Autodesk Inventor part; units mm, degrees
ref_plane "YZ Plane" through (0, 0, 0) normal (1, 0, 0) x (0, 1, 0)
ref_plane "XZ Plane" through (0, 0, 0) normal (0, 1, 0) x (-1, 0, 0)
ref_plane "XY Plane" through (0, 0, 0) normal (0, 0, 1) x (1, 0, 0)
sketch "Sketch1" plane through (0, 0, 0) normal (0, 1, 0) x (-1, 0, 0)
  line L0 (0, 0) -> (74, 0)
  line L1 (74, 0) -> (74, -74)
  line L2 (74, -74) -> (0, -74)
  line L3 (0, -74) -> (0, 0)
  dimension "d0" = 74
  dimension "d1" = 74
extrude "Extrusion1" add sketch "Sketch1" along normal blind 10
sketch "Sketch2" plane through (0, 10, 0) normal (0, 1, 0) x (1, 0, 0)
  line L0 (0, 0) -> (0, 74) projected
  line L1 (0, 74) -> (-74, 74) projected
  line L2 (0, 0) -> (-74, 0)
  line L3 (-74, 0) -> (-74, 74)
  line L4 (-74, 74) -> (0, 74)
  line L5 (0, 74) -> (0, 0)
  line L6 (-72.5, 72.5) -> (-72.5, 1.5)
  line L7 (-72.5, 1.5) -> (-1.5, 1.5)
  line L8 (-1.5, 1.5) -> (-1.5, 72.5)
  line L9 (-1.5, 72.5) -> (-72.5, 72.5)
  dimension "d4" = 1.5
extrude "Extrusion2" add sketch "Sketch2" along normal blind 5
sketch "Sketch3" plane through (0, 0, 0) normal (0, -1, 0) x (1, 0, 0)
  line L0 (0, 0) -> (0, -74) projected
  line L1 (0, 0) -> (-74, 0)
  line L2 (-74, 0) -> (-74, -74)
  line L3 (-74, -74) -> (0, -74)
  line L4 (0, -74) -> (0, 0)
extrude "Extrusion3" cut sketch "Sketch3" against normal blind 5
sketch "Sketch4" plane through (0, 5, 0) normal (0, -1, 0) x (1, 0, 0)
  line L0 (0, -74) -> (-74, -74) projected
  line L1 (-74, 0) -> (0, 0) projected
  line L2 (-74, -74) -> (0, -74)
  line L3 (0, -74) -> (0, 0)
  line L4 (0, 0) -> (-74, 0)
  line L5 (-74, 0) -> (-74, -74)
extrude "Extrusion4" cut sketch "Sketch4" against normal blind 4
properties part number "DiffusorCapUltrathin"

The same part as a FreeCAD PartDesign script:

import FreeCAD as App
import Part
import Sketcher

doc = App.newDocument("Part")
params = doc.addObject("Spreadsheet::Sheet", "Params")
for row, (alias, value) in enumerate([
    ("sketch1_width", "74 mm"),
    ("pad1_length", "10 mm"),
    ("sketch2_width", "74 mm"),
    ("pad2_length", "5 mm"),
    ("sketch3_width", "74 mm"),
    ("pocket1_length", "5 mm"),
    ("sketch4_width", "74 mm"),
    ("pocket2_length", "4 mm"),
], start=1):
    params.set(f"A{row}", alias)
    params.set(f"B{row}", "=" + value)
    params.setAlias(f"B{row}", alias)

body = doc.addObject("PartDesign::Body", "Body")

sketch1 = body.newObject("Sketcher::SketchObject", "Sketch")
sketch1.AttachmentSupport = (doc.getObject("XZ_Plane"), [""])
sketch1.MapMode = "FlatFace"
sketch1.addGeometry([
    Part.LineSegment(App.Vector(-74, 0, 0), App.Vector(0, 0, 0)),
    Part.LineSegment(App.Vector(0, 0, 0), App.Vector(0, -74, 0)),
    Part.LineSegment(App.Vector(0, -74, 0), App.Vector(-74, -74, 0)),
    Part.LineSegment(App.Vector(-74, -74, 0), App.Vector(-74, 0, 0)),
], False)
sketch1.addConstraint([
    Sketcher.Constraint("Coincident", 0, 2, 1, 1),
    Sketcher.Constraint("Coincident", 1, 2, 2, 1),
    Sketcher.Constraint("Coincident", 2, 2, 3, 1),
    Sketcher.Constraint("Coincident", 3, 2, 0, 1),
    Sketcher.Constraint("Horizontal", 0),
    Sketcher.Constraint("Vertical", 1),
    Sketcher.Constraint("Horizontal", 2),
    Sketcher.Constraint("Vertical", 3),
    Sketcher.Constraint("Coincident", 0, 2, -1, 1),
    Sketcher.Constraint("Equal", 2, 1),
    Sketcher.Constraint("DistanceX", 0, 1, 0, 2, 74.0),
])
sketch1.setExpression("Constraints[10]", "Params.sketch1_width")
pad1 = body.newObject("PartDesign::Pad", "Pad")
pad1.Profile = sketch1
pad1.setExpression("Length", "Params.pad1_length")
pad1.Reversed = True

sketch2 = body.newObject("Sketcher::SketchObject", "Sketch001")
sketch2.AttachmentSupport = (doc.getObject("XZ_Plane"), [""])
sketch2.MapMode = "FlatFace"
sketch2.AttachmentOffset = App.Placement(App.Vector(0, 0, -10), App.Rotation())
sketch2.addGeometry([
    Part.LineSegment(App.Vector(-74, 0, 0), App.Vector(0, 0, 0)),
    Part.LineSegment(App.Vector(0, 0, 0), App.Vector(0, -74, 0)),
    Part.LineSegment(App.Vector(0, -74, 0), App.Vector(-74, -74, 0)),
    Part.LineSegment(App.Vector(-74, -74, 0), App.Vector(-74, 0, 0)),
    Part.LineSegment(App.Vector(-72, -2, 0), App.Vector(-72, -72, 0)),
    Part.LineSegment(App.Vector(-72, -72, 0), App.Vector(-2, -72, 0)),
    Part.LineSegment(App.Vector(-2, -72, 0), App.Vector(-2, -2, 0)),
    Part.LineSegment(App.Vector(-2, -2, 0), App.Vector(-72, -2, 0)),
], False)
sketch2.addConstraint([
    Sketcher.Constraint("Coincident", 0, 2, 1, 1),
    Sketcher.Constraint("Coincident", 1, 2, 2, 1),
    Sketcher.Constraint("Coincident", 2, 2, 3, 1),
    Sketcher.Constraint("Coincident", 3, 2, 0, 1),
    Sketcher.Constraint("Coincident", 4, 2, 5, 1),
    Sketcher.Constraint("Coincident", 5, 2, 6, 1),
    Sketcher.Constraint("Coincident", 6, 2, 7, 1),
    Sketcher.Constraint("Coincident", 7, 2, 4, 1),
    Sketcher.Constraint("Horizontal", 0),
    Sketcher.Constraint("Vertical", 1),
    Sketcher.Constraint("Horizontal", 2),
    Sketcher.Constraint("Vertical", 3),
    Sketcher.Constraint("Vertical", 4),
    Sketcher.Constraint("Horizontal", 5),
    Sketcher.Constraint("Vertical", 6),
    Sketcher.Constraint("Horizontal", 7),
    Sketcher.Constraint("Coincident", 0, 2, -1, 1),
    Sketcher.Constraint("Equal", 2, 1),
    Sketcher.Constraint("Equal", 7, 4),
    Sketcher.Constraint("DistanceX", 5, 2, -1, 1, 1.5),
    Sketcher.Constraint("DistanceY", 6, 2, -1, 1, 1.5),
    Sketcher.Constraint("DistanceX", 2, 2, 4, 2, 1.5),
    Sketcher.Constraint("DistanceX", 0, 1, 0, 2, 74.0),
])
sketch2.setExpression("Constraints[22]", "Params.sketch2_width")
pad2 = body.newObject("PartDesign::Pad", "Pad001")
pad2.Profile = sketch2
pad2.setExpression("Length", "Params.pad2_length")
pad2.Reversed = True

sketch3 = body.newObject("Sketcher::SketchObject", "Sketch002")
sketch3.AttachmentSupport = (doc.getObject("XZ_Plane"), [""])
sketch3.MapMode = "FlatFace"
sketch3.addGeometry([
    Part.LineSegment(App.Vector(0, -74, 0), App.Vector(0, 0, 0)),
    Part.LineSegment(App.Vector(0, 0, 0), App.Vector(-74, 0, 0)),
    Part.LineSegment(App.Vector(-74, 0, 0), App.Vector(-74, -74, 0)),
    Part.LineSegment(App.Vector(-74, -74, 0), App.Vector(0, -74, 0)),
], False)
sketch3.addConstraint([
    Sketcher.Constraint("Coincident", 0, 2, 1, 1),
    Sketcher.Constraint("Coincident", 1, 2, 2, 1),
    Sketcher.Constraint("Coincident", 2, 2, 3, 1),
    Sketcher.Constraint("Coincident", 3, 2, 0, 1),
    Sketcher.Constraint("Vertical", 0),
    Sketcher.Constraint("Horizontal", 1),
    Sketcher.Constraint("Vertical", 2),
    Sketcher.Constraint("Horizontal", 3),
    Sketcher.Constraint("Coincident", 0, 2, -1, 1),
    Sketcher.Constraint("Equal", 3, 0),
    Sketcher.Constraint("DistanceX", 1, 2, 1, 1, 74.0),
])
sketch3.setExpression("Constraints[10]", "Params.sketch3_width")
pocket1 = body.newObject("PartDesign::Pocket", "Pocket")
pocket1.Profile = sketch3
pocket1.setExpression("Length", "Params.pocket1_length")

sketch4 = body.newObject("Sketcher::SketchObject", "Sketch003")
sketch4.AttachmentSupport = (doc.getObject("XZ_Plane"), [""])
sketch4.MapMode = "FlatFace"
sketch4.AttachmentOffset = App.Placement(App.Vector(0, 0, -5), App.Rotation())
sketch4.addGeometry([
    Part.LineSegment(App.Vector(-74, -74, 0), App.Vector(0, -74, 0)),
    Part.LineSegment(App.Vector(0, -74, 0), App.Vector(0, 0, 0)),
    Part.LineSegment(App.Vector(0, 0, 0), App.Vector(-74, 0, 0)),
    Part.LineSegment(App.Vector(-74, 0, 0), App.Vector(-74, -74, 0)),
], False)
sketch4.addConstraint([
    Sketcher.Constraint("Coincident", 0, 2, 1, 1),
    Sketcher.Constraint("Coincident", 1, 2, 2, 1),
    Sketcher.Constraint("Coincident", 2, 2, 3, 1),
    Sketcher.Constraint("Coincident", 3, 2, 0, 1),
    Sketcher.Constraint("Horizontal", 0),
    Sketcher.Constraint("Vertical", 1),
    Sketcher.Constraint("Horizontal", 2),
    Sketcher.Constraint("Vertical", 3),
    Sketcher.Constraint("Coincident", 1, 2, -1, 1),
    Sketcher.Constraint("Equal", 2, 1),
    Sketcher.Constraint("DistanceX", 0, 1, 0, 2, 74.0),
])
sketch4.setExpression("Constraints[10]", "Params.sketch4_width")
pocket2 = body.newObject("PartDesign::Pocket", "Pocket001")
pocket2.Profile = sketch4
pocket2.setExpression("Length", "Params.pocket2_length")

doc.recompute()
